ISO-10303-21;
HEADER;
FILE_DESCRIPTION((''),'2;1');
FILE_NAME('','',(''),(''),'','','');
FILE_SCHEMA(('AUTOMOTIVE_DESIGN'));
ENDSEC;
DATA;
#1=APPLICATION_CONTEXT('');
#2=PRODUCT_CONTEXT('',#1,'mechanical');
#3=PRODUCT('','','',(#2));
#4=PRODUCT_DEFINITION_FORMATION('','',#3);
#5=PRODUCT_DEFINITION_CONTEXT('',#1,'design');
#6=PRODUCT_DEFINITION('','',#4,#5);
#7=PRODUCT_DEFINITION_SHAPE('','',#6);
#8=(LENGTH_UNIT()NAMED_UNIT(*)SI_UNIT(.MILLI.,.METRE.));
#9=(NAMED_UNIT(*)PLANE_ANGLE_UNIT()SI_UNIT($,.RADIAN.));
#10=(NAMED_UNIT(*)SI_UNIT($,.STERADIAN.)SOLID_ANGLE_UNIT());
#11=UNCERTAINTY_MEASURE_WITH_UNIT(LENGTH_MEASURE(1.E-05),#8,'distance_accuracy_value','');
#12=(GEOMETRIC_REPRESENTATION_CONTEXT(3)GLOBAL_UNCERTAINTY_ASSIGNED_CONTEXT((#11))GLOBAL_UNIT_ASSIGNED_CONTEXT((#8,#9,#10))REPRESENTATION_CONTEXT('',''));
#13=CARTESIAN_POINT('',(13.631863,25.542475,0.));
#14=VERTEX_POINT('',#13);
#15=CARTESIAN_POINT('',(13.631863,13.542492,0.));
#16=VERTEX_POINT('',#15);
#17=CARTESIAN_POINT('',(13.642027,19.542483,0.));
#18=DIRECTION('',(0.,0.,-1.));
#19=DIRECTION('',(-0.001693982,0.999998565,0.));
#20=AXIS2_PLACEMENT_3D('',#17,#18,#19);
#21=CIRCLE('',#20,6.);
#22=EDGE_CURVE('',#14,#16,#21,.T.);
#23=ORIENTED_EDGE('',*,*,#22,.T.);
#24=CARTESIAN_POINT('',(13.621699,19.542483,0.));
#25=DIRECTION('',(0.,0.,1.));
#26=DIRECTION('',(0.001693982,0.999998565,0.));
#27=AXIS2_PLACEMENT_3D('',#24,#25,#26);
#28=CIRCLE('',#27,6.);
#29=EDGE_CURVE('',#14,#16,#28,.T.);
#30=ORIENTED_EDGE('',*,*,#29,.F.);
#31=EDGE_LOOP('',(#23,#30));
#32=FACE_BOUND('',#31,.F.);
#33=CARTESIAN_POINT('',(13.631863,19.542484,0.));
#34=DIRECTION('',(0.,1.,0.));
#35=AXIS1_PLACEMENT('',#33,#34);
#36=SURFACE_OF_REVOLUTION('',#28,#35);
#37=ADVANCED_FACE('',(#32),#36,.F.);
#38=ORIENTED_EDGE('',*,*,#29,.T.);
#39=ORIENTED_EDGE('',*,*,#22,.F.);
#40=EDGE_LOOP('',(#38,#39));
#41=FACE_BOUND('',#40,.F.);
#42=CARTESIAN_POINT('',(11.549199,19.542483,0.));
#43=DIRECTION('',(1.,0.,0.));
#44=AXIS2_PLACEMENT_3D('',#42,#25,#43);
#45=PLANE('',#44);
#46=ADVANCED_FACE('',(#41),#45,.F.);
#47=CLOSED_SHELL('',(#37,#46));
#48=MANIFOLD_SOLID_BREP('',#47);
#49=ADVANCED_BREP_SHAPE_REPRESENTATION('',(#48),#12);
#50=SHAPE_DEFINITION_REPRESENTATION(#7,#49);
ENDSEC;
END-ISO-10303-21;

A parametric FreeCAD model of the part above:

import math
import FreeCAD as App
import Part
import Sketcher
Q = App.Units.Quantity

doc = App.newDocument("Part")
params = doc.addObject("Spreadsheet::Sheet", "Params")
for row, (alias, value) in enumerate([
    ("sketch1_radius", "6 mm"),
    ("revolution_angle", "180 deg"),
], start=1):
    params.set(f"A{row}", alias)
    params.set(f"B{row}", "=" + value)
    params.setAlias(f"B{row}", alias)

body = doc.addObject("PartDesign::Body", "Body")

# Sketch on XY plane
sketch1 = body.newObject("Sketcher::SketchObject", "Sketch")
sketch1.AttachmentSupport = (doc.getObject("XY_Plane"), [""])
sketch1.MapMode = "FlatFace"
sketch1.addGeometry([
    Part.LineSegment(App.Vector(13.631863, 13.542492, 0), App.Vector(13.631863, 25.542475, 0)),
    Part.ArcOfCircle(Part.Circle(App.Vector(13.621699, 19.542483, 0), App.Vector(0, 0, 1), 6), math.radians(89.902942), math.radians(270.097058)),
], False)
sketch1.addGeometry(Part.LineSegment(App.Vector(13.631863, 25.542475, 0), App.Vector(13.631863, 13.542492, 0)), True)  # axis
sketch1.addConstraint([
    Sketcher.Constraint("Coincident", 0, 1, 1, 2),
    Sketcher.Constraint("Coincident", 1, 1, 0, 2),
    Sketcher.Constraint("Vertical", 0),
    Sketcher.Constraint("Vertical", 2),
    Sketcher.Constraint("Coincident", 2, 1, 1, 1),
    Sketcher.Constraint("Equal", 0, 2),
    Sketcher.Constraint("Radius", 1, Q("6 mm")),
    Sketcher.Constraint("DistanceX", -1, 1, 1, 3, Q("13.621699 mm")),
    Sketcher.Constraint("DistanceY", -1, 1, 0, 1, Q("13.542492 mm")),
    Sketcher.Constraint("DistanceX", -1, 1, 0, 1, Q("13.631863 mm")),
])
sketch1.setExpression("Constraints[6]", "Params.sketch1_radius")
revolution = body.newObject("PartDesign::Revolution", "Revolution")
revolution.Profile = sketch1
revolution.ReferenceAxis = (sketch1, ["Axis0"])
revolution.setExpression("Angle", "Params.revolution_angle")
revolution.Reversed = True

doc.recompute()
